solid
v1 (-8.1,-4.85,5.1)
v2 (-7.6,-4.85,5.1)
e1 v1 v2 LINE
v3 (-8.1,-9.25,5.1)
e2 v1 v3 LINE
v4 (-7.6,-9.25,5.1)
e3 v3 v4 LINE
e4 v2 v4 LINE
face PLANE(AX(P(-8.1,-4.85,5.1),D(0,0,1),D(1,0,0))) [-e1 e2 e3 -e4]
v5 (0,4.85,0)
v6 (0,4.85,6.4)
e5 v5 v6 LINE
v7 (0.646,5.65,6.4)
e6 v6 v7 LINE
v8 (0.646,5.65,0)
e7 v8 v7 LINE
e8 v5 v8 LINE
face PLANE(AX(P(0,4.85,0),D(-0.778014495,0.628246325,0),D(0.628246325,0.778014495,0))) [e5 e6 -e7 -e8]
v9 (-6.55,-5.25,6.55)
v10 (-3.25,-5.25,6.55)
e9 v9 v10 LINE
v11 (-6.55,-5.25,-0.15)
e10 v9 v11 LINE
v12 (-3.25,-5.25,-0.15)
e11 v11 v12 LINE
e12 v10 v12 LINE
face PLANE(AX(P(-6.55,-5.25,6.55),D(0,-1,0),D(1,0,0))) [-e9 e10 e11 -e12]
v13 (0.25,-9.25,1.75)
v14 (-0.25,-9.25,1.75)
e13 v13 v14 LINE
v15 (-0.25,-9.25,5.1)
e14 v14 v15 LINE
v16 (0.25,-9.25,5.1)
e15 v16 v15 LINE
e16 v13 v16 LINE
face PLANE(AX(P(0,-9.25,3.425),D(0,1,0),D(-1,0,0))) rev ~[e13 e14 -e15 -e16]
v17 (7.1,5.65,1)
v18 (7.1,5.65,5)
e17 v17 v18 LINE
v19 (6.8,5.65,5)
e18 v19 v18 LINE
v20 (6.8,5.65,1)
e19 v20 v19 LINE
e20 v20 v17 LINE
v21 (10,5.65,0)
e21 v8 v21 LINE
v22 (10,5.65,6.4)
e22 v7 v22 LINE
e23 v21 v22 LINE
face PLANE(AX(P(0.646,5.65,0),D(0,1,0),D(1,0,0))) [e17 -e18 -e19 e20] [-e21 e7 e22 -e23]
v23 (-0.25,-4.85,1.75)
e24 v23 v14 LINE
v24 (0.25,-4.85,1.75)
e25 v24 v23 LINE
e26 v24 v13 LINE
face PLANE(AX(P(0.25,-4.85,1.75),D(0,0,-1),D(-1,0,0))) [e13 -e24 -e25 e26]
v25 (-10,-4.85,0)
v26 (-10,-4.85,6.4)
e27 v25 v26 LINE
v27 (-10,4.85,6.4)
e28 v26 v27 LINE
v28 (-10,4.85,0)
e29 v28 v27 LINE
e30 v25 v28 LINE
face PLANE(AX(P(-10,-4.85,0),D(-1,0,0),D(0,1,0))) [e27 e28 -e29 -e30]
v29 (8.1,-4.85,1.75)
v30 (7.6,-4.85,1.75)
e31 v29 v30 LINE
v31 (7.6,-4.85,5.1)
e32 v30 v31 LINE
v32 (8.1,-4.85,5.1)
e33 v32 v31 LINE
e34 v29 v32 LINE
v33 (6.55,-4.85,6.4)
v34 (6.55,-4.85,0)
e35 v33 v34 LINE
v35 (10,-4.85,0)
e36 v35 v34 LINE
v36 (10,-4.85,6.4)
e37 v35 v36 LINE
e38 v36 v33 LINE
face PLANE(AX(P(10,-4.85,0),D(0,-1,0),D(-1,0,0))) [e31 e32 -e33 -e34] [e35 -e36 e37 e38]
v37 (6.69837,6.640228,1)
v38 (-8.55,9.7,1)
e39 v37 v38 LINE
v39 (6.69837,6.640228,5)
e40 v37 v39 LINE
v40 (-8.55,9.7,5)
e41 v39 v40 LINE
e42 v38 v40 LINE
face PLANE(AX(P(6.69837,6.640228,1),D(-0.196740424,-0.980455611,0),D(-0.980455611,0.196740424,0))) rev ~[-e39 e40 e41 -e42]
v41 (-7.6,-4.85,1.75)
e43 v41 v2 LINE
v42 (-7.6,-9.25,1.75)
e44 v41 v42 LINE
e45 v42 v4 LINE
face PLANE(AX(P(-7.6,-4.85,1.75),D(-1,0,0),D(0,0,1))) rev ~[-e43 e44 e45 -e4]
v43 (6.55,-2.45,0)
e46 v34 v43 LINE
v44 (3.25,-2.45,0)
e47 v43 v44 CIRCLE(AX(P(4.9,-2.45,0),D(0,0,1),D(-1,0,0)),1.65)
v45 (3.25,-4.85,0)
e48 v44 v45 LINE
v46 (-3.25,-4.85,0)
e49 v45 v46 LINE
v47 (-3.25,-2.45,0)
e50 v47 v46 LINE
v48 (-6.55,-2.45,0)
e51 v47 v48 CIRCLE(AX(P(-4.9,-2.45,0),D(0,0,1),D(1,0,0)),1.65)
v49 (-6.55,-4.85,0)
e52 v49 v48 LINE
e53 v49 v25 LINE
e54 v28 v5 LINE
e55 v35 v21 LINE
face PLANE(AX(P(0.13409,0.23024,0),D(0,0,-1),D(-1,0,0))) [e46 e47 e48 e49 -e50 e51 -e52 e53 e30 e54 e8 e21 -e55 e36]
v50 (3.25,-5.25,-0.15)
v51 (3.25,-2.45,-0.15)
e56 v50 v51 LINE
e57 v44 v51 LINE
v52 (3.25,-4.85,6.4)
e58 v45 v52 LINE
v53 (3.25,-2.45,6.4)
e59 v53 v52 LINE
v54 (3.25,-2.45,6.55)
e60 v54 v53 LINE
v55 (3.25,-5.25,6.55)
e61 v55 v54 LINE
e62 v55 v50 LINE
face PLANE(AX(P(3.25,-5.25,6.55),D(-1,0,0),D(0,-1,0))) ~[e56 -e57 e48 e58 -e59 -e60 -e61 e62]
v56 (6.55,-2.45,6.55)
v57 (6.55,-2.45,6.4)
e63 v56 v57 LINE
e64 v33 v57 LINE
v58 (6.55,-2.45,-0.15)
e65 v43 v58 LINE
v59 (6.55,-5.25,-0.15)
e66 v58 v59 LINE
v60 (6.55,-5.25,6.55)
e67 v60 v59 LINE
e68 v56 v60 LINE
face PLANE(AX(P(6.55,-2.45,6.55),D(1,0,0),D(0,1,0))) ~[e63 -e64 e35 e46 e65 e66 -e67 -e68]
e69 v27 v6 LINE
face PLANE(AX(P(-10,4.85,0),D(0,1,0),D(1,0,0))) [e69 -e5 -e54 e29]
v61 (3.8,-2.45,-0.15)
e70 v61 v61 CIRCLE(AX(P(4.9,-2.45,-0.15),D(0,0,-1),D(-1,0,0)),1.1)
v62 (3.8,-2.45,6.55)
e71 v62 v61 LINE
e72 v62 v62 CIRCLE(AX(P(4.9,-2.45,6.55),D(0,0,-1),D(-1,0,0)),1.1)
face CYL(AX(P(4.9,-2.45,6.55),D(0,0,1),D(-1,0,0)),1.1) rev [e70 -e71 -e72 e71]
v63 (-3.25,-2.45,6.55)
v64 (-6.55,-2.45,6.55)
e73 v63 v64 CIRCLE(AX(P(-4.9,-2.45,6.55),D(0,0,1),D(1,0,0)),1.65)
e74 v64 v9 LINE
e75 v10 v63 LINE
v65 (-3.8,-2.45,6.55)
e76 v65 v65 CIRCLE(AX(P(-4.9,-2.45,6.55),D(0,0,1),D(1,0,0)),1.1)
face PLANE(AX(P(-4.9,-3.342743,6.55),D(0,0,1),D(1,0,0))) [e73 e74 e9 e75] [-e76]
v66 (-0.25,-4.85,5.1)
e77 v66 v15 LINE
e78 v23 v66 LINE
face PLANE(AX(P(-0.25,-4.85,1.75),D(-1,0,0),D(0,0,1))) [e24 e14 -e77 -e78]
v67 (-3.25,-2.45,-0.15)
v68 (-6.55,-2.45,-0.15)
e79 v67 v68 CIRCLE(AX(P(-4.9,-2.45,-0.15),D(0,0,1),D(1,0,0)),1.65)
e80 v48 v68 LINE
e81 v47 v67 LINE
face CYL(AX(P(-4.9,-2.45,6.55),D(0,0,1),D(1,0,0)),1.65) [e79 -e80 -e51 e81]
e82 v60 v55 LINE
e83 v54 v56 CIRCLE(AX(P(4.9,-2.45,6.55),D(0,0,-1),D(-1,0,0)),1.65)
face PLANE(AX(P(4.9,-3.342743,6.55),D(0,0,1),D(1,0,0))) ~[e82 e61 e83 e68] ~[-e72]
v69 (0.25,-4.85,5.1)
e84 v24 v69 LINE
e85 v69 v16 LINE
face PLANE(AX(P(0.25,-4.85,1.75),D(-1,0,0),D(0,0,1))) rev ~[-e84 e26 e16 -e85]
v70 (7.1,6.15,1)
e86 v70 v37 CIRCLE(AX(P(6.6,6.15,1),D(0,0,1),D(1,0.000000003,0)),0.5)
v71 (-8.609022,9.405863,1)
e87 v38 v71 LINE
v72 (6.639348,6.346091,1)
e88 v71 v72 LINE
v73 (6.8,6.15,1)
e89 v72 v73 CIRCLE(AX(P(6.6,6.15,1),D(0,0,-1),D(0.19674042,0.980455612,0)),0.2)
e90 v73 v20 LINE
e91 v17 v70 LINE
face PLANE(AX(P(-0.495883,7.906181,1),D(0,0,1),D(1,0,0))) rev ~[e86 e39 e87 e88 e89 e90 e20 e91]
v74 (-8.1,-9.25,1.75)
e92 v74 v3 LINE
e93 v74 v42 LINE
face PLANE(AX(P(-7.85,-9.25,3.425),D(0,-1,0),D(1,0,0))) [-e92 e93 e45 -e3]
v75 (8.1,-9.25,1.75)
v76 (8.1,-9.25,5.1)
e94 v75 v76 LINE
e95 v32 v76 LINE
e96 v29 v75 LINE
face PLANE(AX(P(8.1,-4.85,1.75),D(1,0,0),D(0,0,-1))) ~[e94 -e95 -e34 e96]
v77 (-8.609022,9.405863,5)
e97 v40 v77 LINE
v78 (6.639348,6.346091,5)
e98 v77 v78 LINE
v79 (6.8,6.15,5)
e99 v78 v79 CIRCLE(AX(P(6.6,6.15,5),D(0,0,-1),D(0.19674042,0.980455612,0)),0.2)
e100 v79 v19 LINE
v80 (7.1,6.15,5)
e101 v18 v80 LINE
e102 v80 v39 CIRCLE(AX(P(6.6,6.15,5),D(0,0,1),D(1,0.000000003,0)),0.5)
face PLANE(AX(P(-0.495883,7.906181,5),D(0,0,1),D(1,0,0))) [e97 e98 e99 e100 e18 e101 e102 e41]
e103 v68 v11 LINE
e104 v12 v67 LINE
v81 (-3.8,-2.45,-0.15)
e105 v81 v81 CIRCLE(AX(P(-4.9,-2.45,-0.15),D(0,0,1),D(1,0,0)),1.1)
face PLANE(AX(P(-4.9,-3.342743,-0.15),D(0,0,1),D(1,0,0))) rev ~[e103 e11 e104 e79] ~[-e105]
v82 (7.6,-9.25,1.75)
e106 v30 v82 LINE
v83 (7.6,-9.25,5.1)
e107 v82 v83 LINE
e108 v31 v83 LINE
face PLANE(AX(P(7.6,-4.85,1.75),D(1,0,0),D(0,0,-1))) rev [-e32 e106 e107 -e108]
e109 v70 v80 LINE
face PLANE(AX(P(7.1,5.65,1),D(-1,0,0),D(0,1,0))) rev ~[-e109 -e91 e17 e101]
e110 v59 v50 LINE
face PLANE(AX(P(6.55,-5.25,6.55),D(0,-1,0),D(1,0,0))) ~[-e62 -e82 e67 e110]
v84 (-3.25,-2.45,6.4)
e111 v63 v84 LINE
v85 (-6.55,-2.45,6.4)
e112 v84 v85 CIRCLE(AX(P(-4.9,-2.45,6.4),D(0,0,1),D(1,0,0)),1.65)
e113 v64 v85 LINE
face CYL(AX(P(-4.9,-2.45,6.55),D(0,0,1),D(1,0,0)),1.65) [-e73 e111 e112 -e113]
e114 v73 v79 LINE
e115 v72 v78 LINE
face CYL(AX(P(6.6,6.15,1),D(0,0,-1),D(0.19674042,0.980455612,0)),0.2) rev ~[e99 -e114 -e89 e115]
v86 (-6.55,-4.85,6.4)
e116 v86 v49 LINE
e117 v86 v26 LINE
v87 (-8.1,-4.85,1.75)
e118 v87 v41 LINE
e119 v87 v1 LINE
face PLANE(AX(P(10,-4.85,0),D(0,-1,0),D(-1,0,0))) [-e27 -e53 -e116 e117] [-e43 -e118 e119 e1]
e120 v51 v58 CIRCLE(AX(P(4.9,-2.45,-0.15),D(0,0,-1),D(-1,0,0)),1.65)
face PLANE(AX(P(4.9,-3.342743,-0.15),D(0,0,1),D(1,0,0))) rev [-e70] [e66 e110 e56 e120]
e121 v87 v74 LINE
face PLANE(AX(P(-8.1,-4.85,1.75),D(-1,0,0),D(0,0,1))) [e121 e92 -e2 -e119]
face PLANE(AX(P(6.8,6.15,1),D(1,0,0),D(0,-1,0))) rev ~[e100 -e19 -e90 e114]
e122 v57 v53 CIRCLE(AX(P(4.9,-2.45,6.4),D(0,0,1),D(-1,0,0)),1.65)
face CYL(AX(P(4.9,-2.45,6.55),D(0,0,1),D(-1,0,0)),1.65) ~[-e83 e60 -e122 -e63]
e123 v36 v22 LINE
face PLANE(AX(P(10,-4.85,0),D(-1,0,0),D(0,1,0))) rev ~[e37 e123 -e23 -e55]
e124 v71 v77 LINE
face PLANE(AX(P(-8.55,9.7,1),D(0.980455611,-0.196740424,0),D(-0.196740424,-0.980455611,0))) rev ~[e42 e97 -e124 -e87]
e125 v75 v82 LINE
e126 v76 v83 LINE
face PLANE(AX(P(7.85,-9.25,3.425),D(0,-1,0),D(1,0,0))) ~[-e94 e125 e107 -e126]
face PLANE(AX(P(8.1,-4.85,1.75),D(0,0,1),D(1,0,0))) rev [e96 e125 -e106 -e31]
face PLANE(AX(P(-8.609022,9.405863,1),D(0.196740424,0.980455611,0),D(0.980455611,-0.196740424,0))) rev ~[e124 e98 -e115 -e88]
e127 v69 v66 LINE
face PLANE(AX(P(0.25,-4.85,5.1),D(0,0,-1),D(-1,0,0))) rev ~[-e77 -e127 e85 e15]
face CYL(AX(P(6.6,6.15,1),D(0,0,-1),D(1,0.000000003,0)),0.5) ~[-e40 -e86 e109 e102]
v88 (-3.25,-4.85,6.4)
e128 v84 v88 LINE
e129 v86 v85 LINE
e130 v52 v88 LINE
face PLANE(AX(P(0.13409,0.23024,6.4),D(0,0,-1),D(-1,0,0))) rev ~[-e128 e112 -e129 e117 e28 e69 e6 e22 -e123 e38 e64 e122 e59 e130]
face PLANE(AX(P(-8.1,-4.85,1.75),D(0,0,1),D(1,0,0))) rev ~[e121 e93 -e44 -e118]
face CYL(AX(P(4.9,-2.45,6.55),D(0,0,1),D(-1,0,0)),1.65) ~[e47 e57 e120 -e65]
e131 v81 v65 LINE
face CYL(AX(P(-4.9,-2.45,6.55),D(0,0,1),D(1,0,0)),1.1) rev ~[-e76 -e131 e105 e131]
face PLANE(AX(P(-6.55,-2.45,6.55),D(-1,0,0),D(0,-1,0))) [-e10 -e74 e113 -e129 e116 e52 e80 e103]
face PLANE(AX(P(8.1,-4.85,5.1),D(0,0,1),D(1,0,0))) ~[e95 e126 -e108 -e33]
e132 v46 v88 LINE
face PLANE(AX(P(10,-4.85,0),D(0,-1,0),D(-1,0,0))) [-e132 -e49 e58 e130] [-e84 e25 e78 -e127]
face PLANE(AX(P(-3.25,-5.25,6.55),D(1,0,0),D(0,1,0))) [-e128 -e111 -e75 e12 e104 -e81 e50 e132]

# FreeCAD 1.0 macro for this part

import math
import FreeCAD as App
import Part
import Sketcher

doc = App.newDocument("Part")
body = doc.addObject("PartDesign::Body", "Body")

# Sketch on XY plane
sketch1 = body.newObject("Sketcher::SketchObject", "Sketch")
sketch1.AttachmentSupport = (doc.getObject("XY_Plane"), [""])
sketch1.MapMode = "FlatFace"
sketch1.addGeometry([
    Part.LineSegment(App.Vector(0, 4.8, 0), App.Vector(-10, 4.8, 0)),  # 0
    Part.LineSegment(App.Vector(-10, 4.8, 0), App.Vector(-10, -4.8, 0)),  # 1
    Part.LineSegment(App.Vector(-10, -4.8, 0), App.Vector(10, -4.8, 0)),  # 2
    Part.LineSegment(App.Vector(10, -4.8, 0), App.Vector(10, 5.7, 0)),  # 3
    Part.LineSegment(App.Vector(10, 5.7, 0), App.Vector(0.6, 5.7, 0)),  # 4
    Part.LineSegment(App.Vector(0.6, 5.7, 0), App.Vector(0, 4.8, 0)),  # 5
], False)
sketch1.addConstraint([
    Sketcher.Constraint("Coincident", 0, 2, 1, 1),
    Sketcher.Constraint("Coincident", 1, 2, 2, 1),
    Sketcher.Constraint("Coincident", 2, 2, 3, 1),
    Sketcher.Constraint("Coincident", 3, 2, 4, 1),
    Sketcher.Constraint("Coincident", 4, 2, 5, 1),
    Sketcher.Constraint("Coincident", 5, 2, 0, 1),
    Sketcher.Constraint("Horizontal", 0),
    Sketcher.Constraint("Vertical", 1),
    Sketcher.Constraint("Horizontal", 2),
    Sketcher.Constraint("Vertical", 3),
    Sketcher.Constraint("Horizontal", 4),
    Sketcher.Constraint("Symmetric", 0, 2, 2, 2, -1, 1),
    Sketcher.Constraint("PointOnObject", 5, 2, -2),
    Sketcher.Constraint("DistanceX", 0, 2, 0, 1, 10.0),
    Sketcher.Constraint("DistanceY", 1, 2, 1, 1, 9.7),
    Sketcher.Constraint("DistanceY", 3, 1, 3, 2, 10.5),
    Sketcher.Constraint("DistanceX", 4, 2, 4, 1, 9.354),
])
pad1 = body.newObject("PartDesign::Pad", "Pad")
pad1.Profile = sketch1
pad1.Length = 6.4

# Sketch on XY plane
sketch2 = body.newObject("Sketcher::SketchObject", "Sketch001")
sketch2.AttachmentSupport = (doc.getObject("XY_Plane"), [""])
sketch2.MapMode = "FlatFace"
sketch2.AttachmentOffset = App.Placement(App.Vector(0, 0, 6.4), App.Rotation())
sketch2.addGeometry(Part.Circle(App.Vector(-4.9, -2.5, 0), App.Vector(0, 0, 1), 1.1), False)
sketch2.addConstraint([
    Sketcher.Constraint("Diameter", 0, 2.2),
    Sketcher.Constraint("DistanceX", 0, 3, -1, 1, 4.9),
    Sketcher.Constraint("DistanceY", 0, 3, -1, 1, 2.45),
])
pocket1 = body.newObject("PartDesign::Pocket", "Pocket")
pocket1.Profile = sketch2
pocket1.Type = "ThroughAll"

# Sketch on XY plane
sketch3 = body.newObject("Sketcher::SketchObject", "Sketch002")
sketch3.AttachmentSupport = (doc.getObject("XY_Plane"), [""])
sketch3.MapMode = "FlatFace"
sketch3.AttachmentOffset = App.Placement(App.Vector(0, 0, 6.55), App.Rotation())
sketch3.addGeometry([
    Part.LineSegment(App.Vector(-6.5, -2.5, 0), App.Vector(-6.5, -5.2, 0)),  # 0
    Part.LineSegment(App.Vector(-6.5, -5.2, 0), App.Vector(-3.2, -5.2, 0)),  # 1
    Part.LineSegment(App.Vector(-3.2, -5.2, 0), App.Vector(-3.2, -2.5, 0)),  # 2
    Part.ArcOfCircle(Part.Circle(App.Vector(-4.9, -2.5, 0), App.Vector(0, 0, 1), 1.6), math.radians(0), math.radians(180)),  # 3
    Part.Circle(App.Vector(-4.9, -2.5, 0), App.Vector(0, 0, 1), 1.1),  # 4
], False)
sketch3.addConstraint([
    Sketcher.Constraint("Coincident", 0, 2, 1, 1),
    Sketcher.Constraint("Coincident", 1, 2, 2, 1),
    Sketcher.Constraint("Tangent", 2, 2, 3, 1),
    Sketcher.Constraint("Tangent", 3, 2, 0, 1),
    Sketcher.Constraint("Vertical", 0),
    Sketcher.Constraint("Horizontal", 1),
    Sketcher.Constraint("Vertical", 2),
    Sketcher.Constraint("Coincident", 4, 3, 3, 3),
    Sketcher.Constraint("Diameter", 4, 2.2),
    Sketcher.Constraint("Radius", 3, 1.65),
    Sketcher.Constraint("DistanceY", 0, 2, 0, 1, 2.8),
    Sketcher.Constraint("DistanceX", 3, 3, -1, 1, 4.9),
    Sketcher.Constraint("DistanceY", 3, 3, -1, 1, 2.45),
])
pad2 = body.newObject("PartDesign::Pad", "Pad001")
pad2.Profile = sketch3
pad2.Length = 6.7
pad2.Reversed = True

# Sketch on XZ plane
sketch4 = body.newObject("Sketcher::SketchObject", "Sketch003")
sketch4.AttachmentSupport = (doc.getObject("XZ_Plane"), [""])
sketch4.MapMode = "FlatFace"
sketch4.AttachmentOffset = App.Placement(App.Vector(0, 0, 4.85), App.Rotation())
sketch4.addGeometry([
    Part.LineSegment(App.Vector(-8.1, 5.1, 0), App.Vector(-8.1, 1.8, 0)),
    Part.LineSegment(App.Vector(-8.1, 1.8, 0), App.Vector(-7.6, 1.8, 0)),
    Part.LineSegment(App.Vector(-7.6, 1.8, 0), App.Vector(-7.6, 5.1, 0)),
    Part.LineSegment(App.Vector(-7.6, 5.1, 0), App.Vector(-8.1, 5.1, 0)),
], False)
sketch4.addConstraint([
    Sketcher.Constraint("Coincident", 0, 2, 1, 1),
    Sketcher.Constraint("Coincident", 1, 2, 2, 1),
    Sketcher.Constraint("Coincident", 2, 2, 3, 1),
    Sketcher.Constraint("Coincident", 3, 2, 0, 1),
    Sketcher.Constraint("Vertical", 0),
    Sketcher.Constraint("Horizontal", 1),
    Sketcher.Constraint("Vertical", 2),
    Sketcher.Constraint("Horizontal", 3),
    Sketcher.Constraint("DistanceX", 1, 1, 1, 2, 0.5),
    Sketcher.Constraint("DistanceY", 0, 2, 0, 1, 3.35),
    Sketcher.Constraint("DistanceX", 0, 2, -1, 1, 8.1),
    Sketcher.Constraint("DistanceY", -1, 1, 2, 2, 5.1),
])
pad3 = body.newObject("PartDesign::Pad", "Pad002")
pad3.Profile = sketch4
pad3.Length = 4.4

# Sketch on XZ plane
sketch5 = body.newObject("Sketcher::SketchObject", "Sketch004")
sketch5.AttachmentSupport = (doc.getObject("XZ_Plane"), [""])
sketch5.MapMode = "FlatFace"
sketch5.AttachmentOffset = App.Placement(App.Vector(0, 0, 4.85), App.Rotation())
sketch5.addGeometry([
    Part.LineSegment(App.Vector(0.2, 5.1, 0), App.Vector(0.2, 1.8, 0)),
    Part.LineSegment(App.Vector(0.2, 1.8, 0), App.Vector(-0.2, 1.8, 0)),
    Part.LineSegment(App.Vector(-0.2, 1.8, 0), App.Vector(-0.2, 5.1, 0)),
    Part.LineSegment(App.Vector(-0.2, 5.1, 0), App.Vector(0.2, 5.1, 0)),
], False)
sketch5.addConstraint([
    Sketcher.Constraint("Coincident", 0, 2, 1, 1),
    Sketcher.Constraint("Coincident", 1, 2, 2, 1),
    Sketcher.Constraint("Coincident", 2, 2, 3, 1),
    Sketcher.Constraint("Coincident", 3, 2, 0, 1),
    Sketcher.Constraint("Vertical", 0),
    Sketcher.Constraint("Horizontal", 1),
    Sketcher.Constraint("Vertical", 2),
    Sketcher.Constraint("Horizontal", 3),
    Sketcher.Constraint("DistanceX", 1, 2, 1, 1, 0.5),
    Sketcher.Constraint("DistanceY", 0, 2, 0, 1, 3.35),
    Sketcher.Constraint("DistanceY", -1, 1, 2, 2, 5.1),
    Sketcher.Constraint("DistanceX", -1, 1, 0, 2, 0.25),
])
pad4 = body.newObject("PartDesign::Pad", "Pad003")
pad4.Profile = sketch5
pad4.Length = 4.4
doc.recompute()

mirrored = body.newObject("PartDesign::Mirrored", "Mirrored")
mirrored.Originals = [pocket1, pad2, pad3]
mirrored.MirrorPlane = (doc.getObject("YZ_Plane"), [""])
body.Tip = mirrored

# Sketch on XY plane
sketch6 = body.newObject("Sketcher::SketchObject", "Sketch005")
sketch6.AttachmentSupport = (doc.getObject("XY_Plane"), [""])
sketch6.MapMode = "FlatFace"
sketch6.AttachmentOffset = App.Placement(App.Vector(0, 0, 1), App.Rotation())
sketch6.addGeometry([
    Part.LineSegment(App.Vector(7.1, 6.15, 0), App.Vector(7.1, 5.65, 0)),  # 0
    Part.LineSegment(App.Vector(7.1, 5.65, 0), App.Vector(6.8, 5.65, 0)),  # 1
    Part.LineSegment(App.Vector(6.8, 5.65, 0), App.Vector(6.8, 6.15, 0)),  # 2
    Part.ArcOfCircle(Part.Circle(App.Vector(6.6, 6.15, 0), App.Vector(0, 0, 1), 0.2), math.radians(0), math.radians(79)),  # 3
    Part.LineSegment(App.Vector(6.64, 6.35, 0), App.Vector(-8.61, 9.41, 0)),  # 4
    Part.LineSegment(App.Vector(-8.61, 9.41, 0), App.Vector(-8.55, 9.7, 0)),  # 5
    Part.LineSegment(App.Vector(-8.55, 9.7, 0), App.Vector(6.7, 6.64, 0)),  # 6
    Part.ArcOfCircle(Part.Circle(App.Vector(6.6, 6.15, 0), App.Vector(0, 0, 1), 0.5), math.radians(0), math.radians(79)),  # 7
], False)
sketch6.addConstraint([
    Sketcher.Constraint("Coincident", 0, 2, 1, 1),
    Sketcher.Constraint("Coincident", 1, 2, 2, 1),
    Sketcher.Constraint("Tangent", 2, 2, 3, 1),
    Sketcher.Constraint("Tangent", 3, 2, 4, 1),
    Sketcher.Constraint("Coincident", 4, 2, 5, 1),
    Sketcher.Constraint("Coincident", 5, 2, 6, 1),
    Sketcher.Constraint("Tangent", 6, 2, 7, 2),
    Sketcher.Constraint("Tangent", 7, 1, 0, 1),
    Sketcher.Constraint("Vertical", 0),
    Sketcher.Constraint("Horizontal", 1),
    Sketcher.Constraint("Vertical", 2),
    Sketcher.Constraint("Coincident", 7, 3, 3, 3),
    Sketcher.Constraint("Perpendicular", 4, 5),
    Sketcher.Constraint("Perpendicular", 5, 6),
    Sketcher.Constraint("Radius", 3, 0.2),
    Sketcher.Constraint("Radius", 7, 0.5),
    Sketcher.Constraint("DistanceY", 0, 2, 0, 1, 0.5),
    Sketcher.Constraint("DistanceX", -1, 1, 3, 3, 6.6),
    Sketcher.Constraint("DistanceY", -1, 1, 5, 2, 9.7),
    Sketcher.Constraint("DistanceY", -1, 1, 3, 3, 6.15),
    Sketcher.Constraint("DistanceX", 5, 2, -1, 1, 8.55),
])
pad5 = body.newObject("PartDesign::Pad", "Pad004")
pad5.Profile = sketch6
pad5.Length = 4

doc.recompute()
